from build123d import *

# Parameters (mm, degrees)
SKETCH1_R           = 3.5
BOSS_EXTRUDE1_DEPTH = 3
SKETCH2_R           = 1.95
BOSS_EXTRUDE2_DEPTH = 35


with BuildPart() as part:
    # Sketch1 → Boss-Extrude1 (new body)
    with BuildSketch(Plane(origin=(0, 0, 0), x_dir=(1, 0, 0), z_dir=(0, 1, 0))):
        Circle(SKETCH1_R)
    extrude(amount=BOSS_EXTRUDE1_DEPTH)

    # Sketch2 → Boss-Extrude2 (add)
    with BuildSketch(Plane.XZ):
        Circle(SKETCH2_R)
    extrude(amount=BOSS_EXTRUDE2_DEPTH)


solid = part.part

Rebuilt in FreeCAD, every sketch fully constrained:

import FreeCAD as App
import Part
import Sketcher
Q = App.Units.Quantity

doc = App.newDocument("Part")
body = doc.addObject("PartDesign::Body", "Body")

# Sketch on XZ plane
sketch1 = body.newObject("Sketcher::SketchObject", "Sketch")
sketch1.AttachmentSupport = (doc.getObject("XZ_Plane"), [""])
sketch1.MapMode = "FlatFace"
sketch1.addGeometry(Part.Circle(App.Vector(0, 0, 0), App.Vector(0, 0, 1), 3.5), False)
sketch1.addConstraint([
    Sketcher.Constraint("Coincident", 0, 3, -1, 1),
    Sketcher.Constraint("Diameter", 0, Q("7 mm")),
])
pad1 = body.newObject("PartDesign::Pad", "Pad")
pad1.Profile = sketch1
pad1.Length = 3
pad1.Reversed = True

# Sketch on XZ plane
sketch2 = body.newObject("Sketcher::SketchObject", "Sketch001")
sketch2.AttachmentSupport = (doc.getObject("XZ_Plane"), [""])
sketch2.MapMode = "FlatFace"
sketch2.addGeometry(Part.Circle(App.Vector(0, 0, 0), App.Vector(0, 0, 1), 1.9), False)
sketch2.addConstraint([
    Sketcher.Constraint("Coincident", 0, 3, -1, 1),
    Sketcher.Constraint("Diameter", 0, Q("3.9 mm")),
])
pad2 = body.newObject("PartDesign::Pad", "Pad001")
pad2.Profile = sketch2
pad2.Length = 35

doc.recompute()
